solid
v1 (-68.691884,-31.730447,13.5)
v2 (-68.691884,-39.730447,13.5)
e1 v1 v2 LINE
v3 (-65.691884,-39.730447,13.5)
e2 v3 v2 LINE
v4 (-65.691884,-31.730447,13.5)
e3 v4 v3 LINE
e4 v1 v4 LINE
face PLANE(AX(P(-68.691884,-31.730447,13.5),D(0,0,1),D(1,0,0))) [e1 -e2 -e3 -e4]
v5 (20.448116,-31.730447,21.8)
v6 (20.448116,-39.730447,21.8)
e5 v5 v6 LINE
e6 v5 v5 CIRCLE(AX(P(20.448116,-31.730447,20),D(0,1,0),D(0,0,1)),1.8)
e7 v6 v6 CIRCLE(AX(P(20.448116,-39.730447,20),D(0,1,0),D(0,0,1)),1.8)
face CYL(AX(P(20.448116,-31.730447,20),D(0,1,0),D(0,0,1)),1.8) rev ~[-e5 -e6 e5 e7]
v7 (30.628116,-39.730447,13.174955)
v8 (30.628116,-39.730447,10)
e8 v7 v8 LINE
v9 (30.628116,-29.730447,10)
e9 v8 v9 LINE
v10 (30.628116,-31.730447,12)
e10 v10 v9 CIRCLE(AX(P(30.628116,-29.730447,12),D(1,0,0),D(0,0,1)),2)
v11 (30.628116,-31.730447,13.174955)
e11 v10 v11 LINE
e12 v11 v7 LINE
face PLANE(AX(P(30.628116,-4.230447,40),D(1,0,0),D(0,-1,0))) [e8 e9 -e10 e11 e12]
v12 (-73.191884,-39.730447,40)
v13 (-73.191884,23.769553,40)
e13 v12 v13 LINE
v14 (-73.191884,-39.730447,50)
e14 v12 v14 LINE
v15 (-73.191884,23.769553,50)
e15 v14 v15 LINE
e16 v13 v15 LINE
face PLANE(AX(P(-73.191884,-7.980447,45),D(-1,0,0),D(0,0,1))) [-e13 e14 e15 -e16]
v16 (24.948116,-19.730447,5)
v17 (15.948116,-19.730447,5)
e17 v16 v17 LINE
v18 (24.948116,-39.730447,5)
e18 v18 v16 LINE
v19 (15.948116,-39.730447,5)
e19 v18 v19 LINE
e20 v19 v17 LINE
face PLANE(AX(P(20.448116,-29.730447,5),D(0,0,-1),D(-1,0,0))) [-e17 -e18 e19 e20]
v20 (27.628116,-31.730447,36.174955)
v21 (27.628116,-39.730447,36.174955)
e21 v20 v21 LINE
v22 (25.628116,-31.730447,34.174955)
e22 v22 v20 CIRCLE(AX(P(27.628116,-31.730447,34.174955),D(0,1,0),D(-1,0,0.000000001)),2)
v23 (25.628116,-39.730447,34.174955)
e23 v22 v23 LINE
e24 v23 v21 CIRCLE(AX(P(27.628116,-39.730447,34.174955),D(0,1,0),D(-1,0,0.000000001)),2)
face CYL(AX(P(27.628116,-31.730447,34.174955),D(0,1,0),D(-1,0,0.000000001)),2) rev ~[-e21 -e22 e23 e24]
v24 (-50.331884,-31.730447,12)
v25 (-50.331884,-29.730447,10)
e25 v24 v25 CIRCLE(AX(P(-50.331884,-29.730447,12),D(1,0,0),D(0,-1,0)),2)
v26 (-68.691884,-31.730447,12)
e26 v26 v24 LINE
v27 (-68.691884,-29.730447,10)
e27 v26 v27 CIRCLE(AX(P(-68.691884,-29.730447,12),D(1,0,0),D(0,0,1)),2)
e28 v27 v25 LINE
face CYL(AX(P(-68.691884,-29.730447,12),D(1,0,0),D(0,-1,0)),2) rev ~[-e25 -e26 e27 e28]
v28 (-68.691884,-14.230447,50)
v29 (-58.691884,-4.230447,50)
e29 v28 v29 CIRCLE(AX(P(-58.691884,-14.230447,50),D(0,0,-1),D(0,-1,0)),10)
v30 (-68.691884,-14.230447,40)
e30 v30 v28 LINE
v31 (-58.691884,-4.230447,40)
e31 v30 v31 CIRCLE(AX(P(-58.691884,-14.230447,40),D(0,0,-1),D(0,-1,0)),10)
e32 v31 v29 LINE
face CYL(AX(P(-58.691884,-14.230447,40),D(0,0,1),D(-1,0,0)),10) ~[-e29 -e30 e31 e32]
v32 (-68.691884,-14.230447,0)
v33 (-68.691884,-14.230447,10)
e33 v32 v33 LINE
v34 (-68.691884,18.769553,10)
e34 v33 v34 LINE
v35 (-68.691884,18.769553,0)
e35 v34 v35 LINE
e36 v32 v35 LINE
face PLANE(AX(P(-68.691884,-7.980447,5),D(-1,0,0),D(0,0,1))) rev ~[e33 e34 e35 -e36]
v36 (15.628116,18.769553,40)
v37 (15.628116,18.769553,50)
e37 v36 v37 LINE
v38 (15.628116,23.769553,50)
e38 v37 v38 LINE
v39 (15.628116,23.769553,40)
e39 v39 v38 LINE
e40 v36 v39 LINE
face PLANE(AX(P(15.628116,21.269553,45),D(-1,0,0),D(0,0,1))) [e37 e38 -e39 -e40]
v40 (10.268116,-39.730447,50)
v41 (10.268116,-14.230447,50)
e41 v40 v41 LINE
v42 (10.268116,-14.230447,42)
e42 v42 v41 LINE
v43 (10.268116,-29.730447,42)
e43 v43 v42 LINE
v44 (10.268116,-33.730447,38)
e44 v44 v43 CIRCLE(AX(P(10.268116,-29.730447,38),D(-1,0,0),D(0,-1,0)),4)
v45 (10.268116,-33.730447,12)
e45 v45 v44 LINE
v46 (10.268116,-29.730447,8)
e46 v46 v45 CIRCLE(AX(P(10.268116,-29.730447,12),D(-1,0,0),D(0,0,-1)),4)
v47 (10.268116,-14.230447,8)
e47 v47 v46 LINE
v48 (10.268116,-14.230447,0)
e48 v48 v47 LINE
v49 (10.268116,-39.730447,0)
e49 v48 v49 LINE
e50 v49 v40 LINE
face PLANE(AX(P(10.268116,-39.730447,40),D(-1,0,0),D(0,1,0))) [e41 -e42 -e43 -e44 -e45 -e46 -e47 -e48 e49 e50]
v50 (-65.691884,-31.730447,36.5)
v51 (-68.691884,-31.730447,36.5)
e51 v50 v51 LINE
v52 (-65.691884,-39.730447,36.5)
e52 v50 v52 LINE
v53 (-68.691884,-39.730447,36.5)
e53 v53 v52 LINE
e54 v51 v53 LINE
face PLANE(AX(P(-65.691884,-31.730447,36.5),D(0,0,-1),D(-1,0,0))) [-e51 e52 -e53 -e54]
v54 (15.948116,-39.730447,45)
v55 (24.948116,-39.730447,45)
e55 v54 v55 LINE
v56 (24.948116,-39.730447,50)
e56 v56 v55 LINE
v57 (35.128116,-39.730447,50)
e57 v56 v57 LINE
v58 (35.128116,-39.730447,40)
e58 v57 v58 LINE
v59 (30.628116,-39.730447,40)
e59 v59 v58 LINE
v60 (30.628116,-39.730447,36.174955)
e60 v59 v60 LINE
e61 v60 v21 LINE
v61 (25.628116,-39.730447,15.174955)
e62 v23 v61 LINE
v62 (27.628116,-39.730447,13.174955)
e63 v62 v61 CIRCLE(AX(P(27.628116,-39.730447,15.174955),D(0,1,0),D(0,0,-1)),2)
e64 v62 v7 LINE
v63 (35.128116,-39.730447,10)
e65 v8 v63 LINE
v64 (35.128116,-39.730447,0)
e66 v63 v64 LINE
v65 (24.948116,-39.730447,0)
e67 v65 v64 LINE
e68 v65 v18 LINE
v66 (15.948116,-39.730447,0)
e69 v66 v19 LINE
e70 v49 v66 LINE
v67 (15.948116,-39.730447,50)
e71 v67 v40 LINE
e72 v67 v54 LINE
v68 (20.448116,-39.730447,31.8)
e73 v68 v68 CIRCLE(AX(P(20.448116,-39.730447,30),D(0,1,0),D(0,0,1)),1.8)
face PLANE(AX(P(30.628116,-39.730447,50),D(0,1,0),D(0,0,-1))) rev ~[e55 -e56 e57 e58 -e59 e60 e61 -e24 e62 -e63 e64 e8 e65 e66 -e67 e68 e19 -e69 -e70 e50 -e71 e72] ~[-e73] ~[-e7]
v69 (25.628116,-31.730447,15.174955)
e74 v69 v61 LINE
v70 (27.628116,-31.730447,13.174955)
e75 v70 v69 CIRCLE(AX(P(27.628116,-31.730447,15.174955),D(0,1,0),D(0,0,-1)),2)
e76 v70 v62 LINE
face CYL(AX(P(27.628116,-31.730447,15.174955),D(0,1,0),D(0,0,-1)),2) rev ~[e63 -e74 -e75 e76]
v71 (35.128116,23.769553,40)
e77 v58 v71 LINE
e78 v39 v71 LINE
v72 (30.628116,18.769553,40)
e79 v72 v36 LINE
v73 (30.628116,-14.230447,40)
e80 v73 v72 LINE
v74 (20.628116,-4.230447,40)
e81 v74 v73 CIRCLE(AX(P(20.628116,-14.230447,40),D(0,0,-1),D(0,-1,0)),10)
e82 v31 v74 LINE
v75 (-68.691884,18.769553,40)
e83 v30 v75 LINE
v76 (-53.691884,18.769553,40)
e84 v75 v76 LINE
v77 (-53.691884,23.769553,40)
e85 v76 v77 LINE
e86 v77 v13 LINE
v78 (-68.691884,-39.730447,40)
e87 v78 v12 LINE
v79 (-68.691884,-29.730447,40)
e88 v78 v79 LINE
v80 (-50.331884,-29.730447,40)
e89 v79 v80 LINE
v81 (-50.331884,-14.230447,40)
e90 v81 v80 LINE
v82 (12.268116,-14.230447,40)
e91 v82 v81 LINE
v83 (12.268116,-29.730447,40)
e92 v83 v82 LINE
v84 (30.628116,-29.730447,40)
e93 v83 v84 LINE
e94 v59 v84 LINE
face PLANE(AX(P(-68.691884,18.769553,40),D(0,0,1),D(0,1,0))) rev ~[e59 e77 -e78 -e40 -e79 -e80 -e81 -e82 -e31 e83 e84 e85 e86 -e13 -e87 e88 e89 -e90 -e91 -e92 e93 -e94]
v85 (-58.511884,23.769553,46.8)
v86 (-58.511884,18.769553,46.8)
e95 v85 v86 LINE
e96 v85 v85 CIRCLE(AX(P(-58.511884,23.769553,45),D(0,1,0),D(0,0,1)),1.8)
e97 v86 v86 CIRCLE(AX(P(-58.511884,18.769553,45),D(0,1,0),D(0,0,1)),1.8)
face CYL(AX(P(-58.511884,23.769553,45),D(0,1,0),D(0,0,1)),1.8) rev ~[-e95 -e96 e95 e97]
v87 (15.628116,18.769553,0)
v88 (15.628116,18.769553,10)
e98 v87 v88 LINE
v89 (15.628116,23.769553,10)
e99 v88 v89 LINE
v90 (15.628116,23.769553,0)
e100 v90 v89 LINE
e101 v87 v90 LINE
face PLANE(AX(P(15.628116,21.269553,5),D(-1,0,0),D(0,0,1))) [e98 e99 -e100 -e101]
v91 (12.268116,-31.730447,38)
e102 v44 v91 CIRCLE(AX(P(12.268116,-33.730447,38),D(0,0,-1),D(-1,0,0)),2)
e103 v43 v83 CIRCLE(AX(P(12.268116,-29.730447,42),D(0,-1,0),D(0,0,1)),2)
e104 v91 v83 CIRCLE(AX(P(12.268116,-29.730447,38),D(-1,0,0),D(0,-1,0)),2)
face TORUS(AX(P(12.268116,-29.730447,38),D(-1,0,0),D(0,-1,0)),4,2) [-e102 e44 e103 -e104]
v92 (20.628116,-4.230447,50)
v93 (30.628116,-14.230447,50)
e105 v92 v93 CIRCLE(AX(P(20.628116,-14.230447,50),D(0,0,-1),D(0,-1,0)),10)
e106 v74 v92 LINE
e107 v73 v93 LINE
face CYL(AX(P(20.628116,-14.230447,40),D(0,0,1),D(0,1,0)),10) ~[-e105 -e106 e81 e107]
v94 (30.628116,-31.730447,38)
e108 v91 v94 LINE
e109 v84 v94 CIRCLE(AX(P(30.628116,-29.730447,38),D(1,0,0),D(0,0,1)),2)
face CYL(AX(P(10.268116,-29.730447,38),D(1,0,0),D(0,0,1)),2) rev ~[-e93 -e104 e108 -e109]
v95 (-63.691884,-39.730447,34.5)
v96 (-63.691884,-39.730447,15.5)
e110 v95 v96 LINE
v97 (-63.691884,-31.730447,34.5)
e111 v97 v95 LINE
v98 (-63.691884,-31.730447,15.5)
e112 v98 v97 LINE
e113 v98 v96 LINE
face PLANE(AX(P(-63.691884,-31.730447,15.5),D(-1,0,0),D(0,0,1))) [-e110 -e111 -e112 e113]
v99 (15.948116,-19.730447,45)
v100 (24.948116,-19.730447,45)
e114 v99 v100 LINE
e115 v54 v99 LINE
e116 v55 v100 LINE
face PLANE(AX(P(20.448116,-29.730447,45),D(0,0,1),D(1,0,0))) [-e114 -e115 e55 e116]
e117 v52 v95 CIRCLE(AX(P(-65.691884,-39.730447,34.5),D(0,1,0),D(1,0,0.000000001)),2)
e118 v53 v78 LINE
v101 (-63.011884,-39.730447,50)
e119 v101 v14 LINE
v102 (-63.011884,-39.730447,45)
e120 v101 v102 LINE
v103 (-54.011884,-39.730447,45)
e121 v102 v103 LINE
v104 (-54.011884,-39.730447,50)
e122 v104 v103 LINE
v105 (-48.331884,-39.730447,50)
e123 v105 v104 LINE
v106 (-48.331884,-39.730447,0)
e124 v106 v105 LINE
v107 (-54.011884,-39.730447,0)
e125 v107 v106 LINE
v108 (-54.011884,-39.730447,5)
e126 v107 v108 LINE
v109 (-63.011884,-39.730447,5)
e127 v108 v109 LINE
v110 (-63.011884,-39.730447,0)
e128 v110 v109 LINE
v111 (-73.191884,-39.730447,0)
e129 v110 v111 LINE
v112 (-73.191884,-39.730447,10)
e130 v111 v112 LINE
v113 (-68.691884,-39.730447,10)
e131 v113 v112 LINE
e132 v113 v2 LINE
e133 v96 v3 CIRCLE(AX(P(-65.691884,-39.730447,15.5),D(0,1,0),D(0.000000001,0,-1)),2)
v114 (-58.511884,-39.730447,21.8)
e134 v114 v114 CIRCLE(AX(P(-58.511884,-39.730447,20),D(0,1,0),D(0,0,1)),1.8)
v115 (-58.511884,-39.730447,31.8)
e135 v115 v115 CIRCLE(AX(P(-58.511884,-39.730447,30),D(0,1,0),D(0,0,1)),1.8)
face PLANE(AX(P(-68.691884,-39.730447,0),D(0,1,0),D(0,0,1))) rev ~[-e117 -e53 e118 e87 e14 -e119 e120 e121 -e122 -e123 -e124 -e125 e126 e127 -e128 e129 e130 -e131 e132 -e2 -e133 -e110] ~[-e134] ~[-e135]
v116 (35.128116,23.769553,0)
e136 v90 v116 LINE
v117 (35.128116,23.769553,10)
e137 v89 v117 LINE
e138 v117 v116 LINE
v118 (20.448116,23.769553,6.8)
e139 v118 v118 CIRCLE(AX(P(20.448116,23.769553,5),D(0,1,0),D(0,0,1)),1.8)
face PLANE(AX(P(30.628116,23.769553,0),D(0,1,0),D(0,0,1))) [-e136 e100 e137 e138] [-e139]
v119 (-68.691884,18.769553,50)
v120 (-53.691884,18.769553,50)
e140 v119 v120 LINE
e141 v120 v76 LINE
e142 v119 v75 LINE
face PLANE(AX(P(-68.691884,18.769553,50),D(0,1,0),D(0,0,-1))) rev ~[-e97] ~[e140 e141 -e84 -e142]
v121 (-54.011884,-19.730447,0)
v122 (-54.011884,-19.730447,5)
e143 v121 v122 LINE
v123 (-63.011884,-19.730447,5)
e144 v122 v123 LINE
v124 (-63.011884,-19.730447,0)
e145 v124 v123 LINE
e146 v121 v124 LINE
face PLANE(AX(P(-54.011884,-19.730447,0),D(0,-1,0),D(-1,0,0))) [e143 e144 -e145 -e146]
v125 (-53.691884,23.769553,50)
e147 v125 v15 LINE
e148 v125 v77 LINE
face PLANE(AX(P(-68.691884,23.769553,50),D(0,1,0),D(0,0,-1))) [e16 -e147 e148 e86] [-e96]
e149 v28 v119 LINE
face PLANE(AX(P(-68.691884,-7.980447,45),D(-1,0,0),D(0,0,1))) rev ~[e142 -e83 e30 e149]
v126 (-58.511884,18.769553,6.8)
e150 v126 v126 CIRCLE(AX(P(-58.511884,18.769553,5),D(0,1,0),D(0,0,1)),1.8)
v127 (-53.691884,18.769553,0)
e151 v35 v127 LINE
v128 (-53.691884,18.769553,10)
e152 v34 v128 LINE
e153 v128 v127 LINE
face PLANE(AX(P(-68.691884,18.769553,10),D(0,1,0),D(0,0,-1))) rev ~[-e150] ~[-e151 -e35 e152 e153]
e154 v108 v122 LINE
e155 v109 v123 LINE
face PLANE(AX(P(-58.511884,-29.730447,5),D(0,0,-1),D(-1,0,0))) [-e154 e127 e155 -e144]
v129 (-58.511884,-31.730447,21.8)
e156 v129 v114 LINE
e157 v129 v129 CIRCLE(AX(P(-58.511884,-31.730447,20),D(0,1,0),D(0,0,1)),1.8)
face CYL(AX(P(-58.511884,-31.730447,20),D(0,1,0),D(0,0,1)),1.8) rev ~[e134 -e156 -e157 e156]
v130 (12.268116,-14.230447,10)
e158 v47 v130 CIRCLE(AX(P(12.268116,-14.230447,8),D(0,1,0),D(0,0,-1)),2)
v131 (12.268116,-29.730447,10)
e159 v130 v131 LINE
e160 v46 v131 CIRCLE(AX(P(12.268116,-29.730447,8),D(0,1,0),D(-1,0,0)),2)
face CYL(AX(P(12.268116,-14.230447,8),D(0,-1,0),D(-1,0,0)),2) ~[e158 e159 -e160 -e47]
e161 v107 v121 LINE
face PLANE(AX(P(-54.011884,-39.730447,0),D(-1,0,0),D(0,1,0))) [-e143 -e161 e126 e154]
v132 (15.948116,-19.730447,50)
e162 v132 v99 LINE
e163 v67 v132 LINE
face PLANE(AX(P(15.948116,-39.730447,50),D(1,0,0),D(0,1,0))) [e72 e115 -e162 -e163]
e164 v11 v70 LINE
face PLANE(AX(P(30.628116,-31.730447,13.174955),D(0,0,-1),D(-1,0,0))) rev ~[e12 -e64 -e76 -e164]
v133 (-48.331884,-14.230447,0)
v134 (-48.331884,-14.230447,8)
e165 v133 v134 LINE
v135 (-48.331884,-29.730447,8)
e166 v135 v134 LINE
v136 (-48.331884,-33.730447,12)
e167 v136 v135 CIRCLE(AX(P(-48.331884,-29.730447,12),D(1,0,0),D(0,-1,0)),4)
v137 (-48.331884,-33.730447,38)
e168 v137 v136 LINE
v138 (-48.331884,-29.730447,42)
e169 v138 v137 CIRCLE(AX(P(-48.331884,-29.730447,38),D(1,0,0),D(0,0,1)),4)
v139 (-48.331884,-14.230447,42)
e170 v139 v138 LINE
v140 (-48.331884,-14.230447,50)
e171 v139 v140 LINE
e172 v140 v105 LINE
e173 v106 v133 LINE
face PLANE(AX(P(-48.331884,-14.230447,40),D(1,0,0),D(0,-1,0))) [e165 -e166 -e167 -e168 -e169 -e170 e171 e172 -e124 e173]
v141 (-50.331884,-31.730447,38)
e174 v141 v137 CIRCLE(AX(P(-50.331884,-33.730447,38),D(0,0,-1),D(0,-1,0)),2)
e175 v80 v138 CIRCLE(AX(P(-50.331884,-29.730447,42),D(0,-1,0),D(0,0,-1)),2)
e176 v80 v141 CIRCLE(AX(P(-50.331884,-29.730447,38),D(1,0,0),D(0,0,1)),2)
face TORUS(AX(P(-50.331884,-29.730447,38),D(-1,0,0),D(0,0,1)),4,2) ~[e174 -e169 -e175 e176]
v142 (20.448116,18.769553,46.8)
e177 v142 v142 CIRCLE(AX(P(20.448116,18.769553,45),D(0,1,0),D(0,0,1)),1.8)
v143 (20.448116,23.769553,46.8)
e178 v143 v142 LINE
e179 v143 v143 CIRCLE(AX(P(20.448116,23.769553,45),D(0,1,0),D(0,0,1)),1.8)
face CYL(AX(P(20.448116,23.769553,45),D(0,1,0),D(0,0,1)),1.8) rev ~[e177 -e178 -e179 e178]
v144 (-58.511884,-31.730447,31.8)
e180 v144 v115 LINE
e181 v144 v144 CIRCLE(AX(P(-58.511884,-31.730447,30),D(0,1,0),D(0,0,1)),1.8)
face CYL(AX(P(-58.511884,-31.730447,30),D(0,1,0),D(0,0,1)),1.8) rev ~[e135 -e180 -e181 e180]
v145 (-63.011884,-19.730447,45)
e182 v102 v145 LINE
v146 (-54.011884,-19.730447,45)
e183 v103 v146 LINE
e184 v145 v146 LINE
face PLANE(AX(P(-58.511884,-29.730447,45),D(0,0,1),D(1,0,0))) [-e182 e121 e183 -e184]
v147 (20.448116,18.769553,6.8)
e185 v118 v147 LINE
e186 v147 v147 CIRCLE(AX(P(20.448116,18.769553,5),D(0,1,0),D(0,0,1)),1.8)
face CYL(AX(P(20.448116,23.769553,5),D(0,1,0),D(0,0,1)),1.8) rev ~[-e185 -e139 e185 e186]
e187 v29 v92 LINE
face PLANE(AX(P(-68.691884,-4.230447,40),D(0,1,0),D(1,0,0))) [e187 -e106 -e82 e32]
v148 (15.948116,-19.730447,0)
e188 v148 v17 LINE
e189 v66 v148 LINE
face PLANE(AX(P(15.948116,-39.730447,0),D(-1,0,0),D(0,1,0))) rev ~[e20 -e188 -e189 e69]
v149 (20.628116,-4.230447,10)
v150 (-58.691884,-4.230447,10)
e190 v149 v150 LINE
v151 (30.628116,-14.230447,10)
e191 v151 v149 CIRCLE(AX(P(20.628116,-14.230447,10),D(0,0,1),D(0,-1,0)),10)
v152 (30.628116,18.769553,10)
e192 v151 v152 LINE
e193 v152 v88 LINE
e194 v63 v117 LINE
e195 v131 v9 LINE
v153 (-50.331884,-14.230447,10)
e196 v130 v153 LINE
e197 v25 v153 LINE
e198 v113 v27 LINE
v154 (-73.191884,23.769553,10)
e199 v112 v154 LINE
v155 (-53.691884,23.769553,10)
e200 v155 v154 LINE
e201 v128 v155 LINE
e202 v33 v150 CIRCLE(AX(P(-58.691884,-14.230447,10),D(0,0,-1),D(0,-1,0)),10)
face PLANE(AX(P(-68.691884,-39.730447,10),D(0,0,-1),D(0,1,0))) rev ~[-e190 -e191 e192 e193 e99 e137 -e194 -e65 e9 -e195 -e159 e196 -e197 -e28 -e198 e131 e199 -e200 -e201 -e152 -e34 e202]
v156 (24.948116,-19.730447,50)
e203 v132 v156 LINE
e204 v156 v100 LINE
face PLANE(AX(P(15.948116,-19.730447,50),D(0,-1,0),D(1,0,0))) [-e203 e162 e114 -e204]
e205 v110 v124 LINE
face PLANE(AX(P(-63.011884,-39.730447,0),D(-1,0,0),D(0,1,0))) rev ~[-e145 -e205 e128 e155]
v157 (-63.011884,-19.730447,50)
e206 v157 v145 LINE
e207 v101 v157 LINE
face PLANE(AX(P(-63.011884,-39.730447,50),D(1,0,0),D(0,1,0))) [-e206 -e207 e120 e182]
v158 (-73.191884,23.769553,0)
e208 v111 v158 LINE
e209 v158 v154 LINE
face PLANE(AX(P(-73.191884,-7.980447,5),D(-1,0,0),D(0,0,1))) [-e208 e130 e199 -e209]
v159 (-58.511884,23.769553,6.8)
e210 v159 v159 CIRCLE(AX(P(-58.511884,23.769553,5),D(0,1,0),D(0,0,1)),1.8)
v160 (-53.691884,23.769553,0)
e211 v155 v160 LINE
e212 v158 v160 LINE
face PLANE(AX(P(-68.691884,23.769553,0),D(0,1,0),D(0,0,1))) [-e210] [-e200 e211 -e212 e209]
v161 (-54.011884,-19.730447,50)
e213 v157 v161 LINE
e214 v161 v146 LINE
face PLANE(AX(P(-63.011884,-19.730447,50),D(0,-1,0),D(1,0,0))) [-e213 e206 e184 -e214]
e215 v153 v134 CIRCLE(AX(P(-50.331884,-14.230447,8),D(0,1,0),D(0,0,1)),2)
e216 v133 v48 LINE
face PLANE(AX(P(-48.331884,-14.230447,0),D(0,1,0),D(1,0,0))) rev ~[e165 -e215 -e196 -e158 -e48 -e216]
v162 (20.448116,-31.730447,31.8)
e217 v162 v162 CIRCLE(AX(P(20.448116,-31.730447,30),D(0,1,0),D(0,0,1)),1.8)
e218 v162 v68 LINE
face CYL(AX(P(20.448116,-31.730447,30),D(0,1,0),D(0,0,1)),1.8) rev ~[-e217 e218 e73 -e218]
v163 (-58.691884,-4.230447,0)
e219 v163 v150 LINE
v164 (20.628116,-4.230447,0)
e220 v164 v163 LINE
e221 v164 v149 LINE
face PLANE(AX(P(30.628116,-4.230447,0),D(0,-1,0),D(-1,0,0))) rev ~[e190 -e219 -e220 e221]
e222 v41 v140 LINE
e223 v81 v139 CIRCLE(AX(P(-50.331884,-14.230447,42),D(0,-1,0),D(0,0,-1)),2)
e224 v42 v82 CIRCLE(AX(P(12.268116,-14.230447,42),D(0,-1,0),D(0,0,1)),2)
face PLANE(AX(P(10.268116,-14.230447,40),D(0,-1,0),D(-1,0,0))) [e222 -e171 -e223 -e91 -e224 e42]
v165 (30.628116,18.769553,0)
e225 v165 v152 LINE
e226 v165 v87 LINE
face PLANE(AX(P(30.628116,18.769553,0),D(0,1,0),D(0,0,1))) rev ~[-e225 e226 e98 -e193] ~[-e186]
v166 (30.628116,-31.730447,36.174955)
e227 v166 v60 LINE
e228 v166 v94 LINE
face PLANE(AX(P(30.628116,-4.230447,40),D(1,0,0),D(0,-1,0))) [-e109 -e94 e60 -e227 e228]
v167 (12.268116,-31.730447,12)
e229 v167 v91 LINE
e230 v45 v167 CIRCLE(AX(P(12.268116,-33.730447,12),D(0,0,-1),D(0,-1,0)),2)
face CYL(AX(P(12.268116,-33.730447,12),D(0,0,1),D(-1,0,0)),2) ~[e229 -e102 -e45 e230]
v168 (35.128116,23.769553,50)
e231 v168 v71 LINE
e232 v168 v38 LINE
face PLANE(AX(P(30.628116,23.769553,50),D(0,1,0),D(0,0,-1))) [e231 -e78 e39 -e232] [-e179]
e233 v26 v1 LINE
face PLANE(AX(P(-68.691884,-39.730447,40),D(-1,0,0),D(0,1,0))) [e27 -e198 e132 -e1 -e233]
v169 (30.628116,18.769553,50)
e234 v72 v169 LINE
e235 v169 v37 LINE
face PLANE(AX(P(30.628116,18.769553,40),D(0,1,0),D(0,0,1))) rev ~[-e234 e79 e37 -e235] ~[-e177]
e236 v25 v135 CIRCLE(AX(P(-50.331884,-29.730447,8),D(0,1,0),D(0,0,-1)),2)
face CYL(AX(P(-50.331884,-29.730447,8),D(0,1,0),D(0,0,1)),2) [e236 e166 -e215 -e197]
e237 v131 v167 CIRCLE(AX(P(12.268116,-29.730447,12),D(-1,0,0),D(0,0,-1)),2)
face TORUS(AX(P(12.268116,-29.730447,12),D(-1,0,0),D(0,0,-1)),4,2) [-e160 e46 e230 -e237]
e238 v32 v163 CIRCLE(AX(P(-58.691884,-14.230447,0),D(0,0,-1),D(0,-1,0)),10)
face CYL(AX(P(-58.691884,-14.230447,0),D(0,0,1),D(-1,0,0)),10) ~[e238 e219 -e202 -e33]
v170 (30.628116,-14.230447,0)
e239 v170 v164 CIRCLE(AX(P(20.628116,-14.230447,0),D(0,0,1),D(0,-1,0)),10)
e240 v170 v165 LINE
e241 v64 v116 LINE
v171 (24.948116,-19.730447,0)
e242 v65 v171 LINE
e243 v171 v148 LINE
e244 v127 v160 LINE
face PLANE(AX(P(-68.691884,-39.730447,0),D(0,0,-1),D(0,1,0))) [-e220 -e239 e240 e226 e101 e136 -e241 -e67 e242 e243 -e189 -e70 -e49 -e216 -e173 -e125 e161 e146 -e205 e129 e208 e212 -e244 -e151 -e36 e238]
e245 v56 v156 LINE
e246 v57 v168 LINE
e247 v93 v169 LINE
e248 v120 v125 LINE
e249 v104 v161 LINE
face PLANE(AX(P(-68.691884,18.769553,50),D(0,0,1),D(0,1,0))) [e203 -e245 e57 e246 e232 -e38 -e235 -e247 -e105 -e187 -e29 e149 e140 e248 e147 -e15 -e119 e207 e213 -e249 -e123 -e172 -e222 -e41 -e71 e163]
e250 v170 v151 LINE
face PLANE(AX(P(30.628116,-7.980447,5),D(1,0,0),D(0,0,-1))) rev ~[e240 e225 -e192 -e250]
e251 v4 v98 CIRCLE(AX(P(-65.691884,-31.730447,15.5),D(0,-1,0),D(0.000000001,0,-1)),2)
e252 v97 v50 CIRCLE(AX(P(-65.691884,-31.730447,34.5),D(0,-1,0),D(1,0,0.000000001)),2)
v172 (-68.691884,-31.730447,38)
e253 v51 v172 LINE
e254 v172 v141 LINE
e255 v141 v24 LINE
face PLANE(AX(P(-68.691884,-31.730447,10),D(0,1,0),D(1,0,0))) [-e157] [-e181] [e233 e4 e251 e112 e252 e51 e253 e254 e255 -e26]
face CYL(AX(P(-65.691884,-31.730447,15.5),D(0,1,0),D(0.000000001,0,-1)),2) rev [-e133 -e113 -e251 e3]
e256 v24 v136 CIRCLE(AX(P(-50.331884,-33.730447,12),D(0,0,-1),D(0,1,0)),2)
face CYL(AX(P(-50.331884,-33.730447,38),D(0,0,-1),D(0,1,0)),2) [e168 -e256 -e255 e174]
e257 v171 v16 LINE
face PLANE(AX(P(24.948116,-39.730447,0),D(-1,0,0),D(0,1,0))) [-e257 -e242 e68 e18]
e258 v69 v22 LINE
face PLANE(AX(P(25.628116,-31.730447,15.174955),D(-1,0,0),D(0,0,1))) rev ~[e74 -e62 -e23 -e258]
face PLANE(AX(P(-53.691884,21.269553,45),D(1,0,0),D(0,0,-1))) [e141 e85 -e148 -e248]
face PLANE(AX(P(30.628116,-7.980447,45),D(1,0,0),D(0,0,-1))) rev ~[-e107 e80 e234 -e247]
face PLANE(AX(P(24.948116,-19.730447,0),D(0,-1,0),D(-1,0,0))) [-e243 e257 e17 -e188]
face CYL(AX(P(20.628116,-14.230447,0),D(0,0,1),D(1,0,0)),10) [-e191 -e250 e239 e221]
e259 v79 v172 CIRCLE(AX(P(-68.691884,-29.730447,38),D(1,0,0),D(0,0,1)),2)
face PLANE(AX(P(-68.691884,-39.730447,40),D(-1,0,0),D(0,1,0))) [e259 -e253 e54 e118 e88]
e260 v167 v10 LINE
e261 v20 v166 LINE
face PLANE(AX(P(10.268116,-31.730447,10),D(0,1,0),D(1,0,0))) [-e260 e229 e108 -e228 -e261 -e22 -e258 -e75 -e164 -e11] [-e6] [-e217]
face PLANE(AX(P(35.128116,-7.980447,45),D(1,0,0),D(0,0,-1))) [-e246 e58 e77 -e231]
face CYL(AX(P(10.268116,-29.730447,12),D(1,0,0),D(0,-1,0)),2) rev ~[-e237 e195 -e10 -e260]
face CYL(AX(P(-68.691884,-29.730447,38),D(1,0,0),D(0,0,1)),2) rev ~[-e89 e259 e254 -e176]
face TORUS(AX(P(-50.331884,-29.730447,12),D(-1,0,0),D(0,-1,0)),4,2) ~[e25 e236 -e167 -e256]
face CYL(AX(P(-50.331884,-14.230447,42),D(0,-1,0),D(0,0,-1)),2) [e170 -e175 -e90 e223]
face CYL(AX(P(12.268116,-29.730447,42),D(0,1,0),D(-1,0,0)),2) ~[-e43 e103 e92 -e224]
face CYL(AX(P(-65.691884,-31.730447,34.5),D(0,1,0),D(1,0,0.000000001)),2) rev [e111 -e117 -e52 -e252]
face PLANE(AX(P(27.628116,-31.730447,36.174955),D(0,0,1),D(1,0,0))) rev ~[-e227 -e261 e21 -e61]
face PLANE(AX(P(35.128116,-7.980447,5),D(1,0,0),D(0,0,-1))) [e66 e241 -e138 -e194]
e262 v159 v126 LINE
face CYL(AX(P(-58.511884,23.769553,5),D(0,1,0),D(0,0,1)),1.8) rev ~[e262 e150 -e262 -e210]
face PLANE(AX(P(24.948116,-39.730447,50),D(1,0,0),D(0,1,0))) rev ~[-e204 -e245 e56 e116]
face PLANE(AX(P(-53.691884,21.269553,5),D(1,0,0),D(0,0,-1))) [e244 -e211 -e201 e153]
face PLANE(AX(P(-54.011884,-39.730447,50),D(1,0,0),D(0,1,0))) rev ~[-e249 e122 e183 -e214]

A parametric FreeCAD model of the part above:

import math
import FreeCAD as App
import Part
import Sketcher
from FreeCAD import Vector
Q = App.Units.Quantity


def edges_at(feature, points):
    """Names of the edges that pass closest to the given points."""
    edges = feature.Shape.Edges
    near = lambda p: min(range(len(edges)), key=lambda i: edges[i].distToShape(Part.Vertex(*p))[0])
    return sorted({f"Edge{near(p) + 1}" for p in points})


def add_polygon(sketch, points):
    """Adds a closed chain of lines whose ends are joined by coincident constraints."""
    first, n = sketch.GeometryCount, len(points)
    for a, b in zip(points, points[1:] + points[:1]):
        sketch.addGeometry(Part.LineSegment(App.Vector(*a, 0), App.Vector(*b, 0)), False)
    for i in range(n):
        sketch.addConstraint(Sketcher.Constraint("Coincident", first + i, 2, first + (i + 1) % n, 1))

doc = App.newDocument("Part")
params = doc.addObject("Spreadsheet::Sheet", "Params")
for row, (alias, value) in enumerate([
    ("sketch1_width", "58.6 mm"),
    ("sketch1_height", "25.5 mm"),
    ("sketch1_height2", "35.5 mm"),
    ("sketch1_width2", "20.36 mm"),
    ("pad1_length", "10 mm"),
    ("sketch2_height", "8 mm"),
    ("sketch2_width", "20.36 mm"),
    ("pad2_length", "30 mm"),
    ("sketch3_width", "58.6 mm"),
    ("sketch3_height", "35.5 mm"),
    ("sketch3_height2", "25.5 mm"),
    ("sketch3_width2", "20.36 mm"),
    ("pad3_length", "10 mm"),
    ("sketch4_diameter", "3.6 mm"),
    ("sketch5_radius", "2 mm"),
    ("sketch5_width", "3 mm"),
    ("sketch5_height", "23 mm"),
    ("fillet_radius", "10 mm"),
    ("fillet2_radius", "2 mm"),
    ("fillet3_radius", "2 mm"),
    ("sketch6_width", "9 mm"),
    ("sketch6_height", "20 mm"),
    ("pocket3_length", "5 mm"),
    ("sketch7_width", "9 mm"),
    ("sketch7_height", "20 mm"),
    ("pocket4_length", "5 mm"),
    ("sketch8_height", "10 mm"),
    ("sketch8_width", "63.5 mm"),
    ("pad4_length", "4.5 mm"),
    ("sketch9_width", "5 mm"),
    ("sketch9_height", "10 mm"),
    ("pad5_length", "15 mm"),
    ("sketch10_height", "10 mm"),
    ("sketch10_width", "63.5 mm"),
    ("pad6_length", "4.5 mm"),
    ("sketch11_width", "5 mm"),
    ("sketch11_height", "10 mm"),
    ("pad7_length", "15 mm"),
    ("sketch12_diameter", "3.6 mm"),
    ("pocket5_length", "5 mm"),
], start=1):
    params.set(f"A{row}", alias)
    params.set(f"B{row}", "=" + value)
    params.setAlias(f"B{row}", alias)

body = doc.addObject("PartDesign::Body", "Body")

sketch1 = body.newObject("Sketcher::SketchObject", "Sketch")
sketch1.AttachmentSupport = (doc.getObject("XY_Plane"), [""])
sketch1.MapMode = "FlatFace"
add_polygon(sketch1, [(-69, -40), (-48, -40), (-48, -14), (10, -14), (10, -40), (31, -40), (31, -4), (-69, -4)])
sketch1.addConstraint([
    Sketcher.Constraint("Horizontal", 0),
    Sketcher.Constraint("Vertical", 1),
    Sketcher.Constraint("Horizontal", 2),
    Sketcher.Constraint("Vertical", 3),
    Sketcher.Constraint("Horizontal", 4),
    Sketcher.Constraint("Vertical", 5),
    Sketcher.Constraint("Horizontal", 6),
    Sketcher.Constraint("Vertical", 7),
    Sketcher.Constraint("Horizontal", 0, 2, 3, 2),
    Sketcher.Constraint("Equal", 0, 4),
    Sketcher.Constraint("DistanceX", 2, 1, 2, 2, Q("58.6 mm")),
    Sketcher.Constraint("DistanceY", 1, 1, 1, 2, Q("25.5 mm")),
    Sketcher.Constraint("DistanceY", 5, 1, 5, 2, Q("35.5 mm")),
    Sketcher.Constraint("DistanceX", 0, 1, 0, 2, Q("20.36 mm")),
    Sketcher.Constraint("DistanceX", 0, 2, -1, 1, Q("48.331884 mm")),
    Sketcher.Constraint("DistanceY", 0, 2, -1, 1, Q("39.730447 mm")),
])
sketch1.setExpression("Constraints[18]", "Params.sketch1_width")
sketch1.setExpression("Constraints[19]", "Params.sketch1_height")
sketch1.setExpression("Constraints[20]", "Params.sketch1_height2")
sketch1.setExpression("Constraints[21]", "Params.sketch1_width2")
pad1 = body.newObject("PartDesign::Pad", "Pad")
pad1.Profile = sketch1
pad1.setExpression("Length", "Params.pad1_length")

sketch2 = body.newObject("Sketcher::SketchObject", "Sketch001")
sketch2.AttachmentSupport = (doc.getObject("XY_Plane"), [""])
sketch2.MapMode = "FlatFace"
sketch2.AttachmentOffset = App.Placement(Vector(0, 0, 10), App.Rotation())
add_polygon(sketch2, [(-69, -32), (-69, -40), (-48, -40), (-48, -32)])
add_polygon(sketch2, [(10, -32), (10, -40), (31, -40), (31, -32)])
sketch2.addConstraint([
    Sketcher.Constraint("Vertical", 0),
    Sketcher.Constraint("Horizontal", 1),
    Sketcher.Constraint("Vertical", 2),
    Sketcher.Constraint("Horizontal", 3),
    Sketcher.Constraint("Vertical", 4),
    Sketcher.Constraint("Horizontal", 5),
    Sketcher.Constraint("Vertical", 6),
    Sketcher.Constraint("Horizontal", 7),
    Sketcher.Constraint("Horizontal", 1, 2, 4, 2),
    Sketcher.Constraint("Horizontal", 3, 2, 6, 2),
    Sketcher.Constraint("Equal", 3, 5),
    Sketcher.Constraint("DistanceY", 0, 2, 0, 1, Q("8 mm")),
    Sketcher.Constraint("DistanceX", 1, 1, 1, 2, Q("20.36 mm")),
    Sketcher.Constraint("DistanceX", 1, 2, 4, 2, Q("58.6 mm")),
    Sketcher.Constraint("DistanceX", 0, 2, -1, 1, Q("68.691884 mm")),
    Sketcher.Constraint("DistanceY", 0, 2, -1, 1, Q("39.730447 mm")),
])
sketch2.setExpression("Constraints[19]", "Params.sketch2_height")
sketch2.setExpression("Constraints[20]", "Params.sketch2_width")
pad2 = body.newObject("PartDesign::Pad", "Pad001")
pad2.Profile = sketch2
pad2.setExpression("Length", "Params.pad2_length")

sketch3 = body.newObject("Sketcher::SketchObject", "Sketch002")
sketch3.AttachmentSupport = (doc.getObject("XY_Plane"), [""])
sketch3.MapMode = "FlatFace"
sketch3.AttachmentOffset = App.Placement(Vector(0, 0, 40), App.Rotation())
add_polygon(sketch3, [(-69, -4), (-69, -40), (-48, -40), (-48, -14), (10, -14), (10, -40), (31, -40), (31, -4)])
sketch3.addConstraint([
    Sketcher.Constraint("Vertical", 0),
    Sketcher.Constraint("Horizontal", 1),
    Sketcher.Constraint("Vertical", 2),
    Sketcher.Constraint("Horizontal", 3),
    Sketcher.Constraint("Vertical", 4),
    Sketcher.Constraint("Horizontal", 5),
    Sketcher.Constraint("Vertical", 6),
    Sketcher.Constraint("Horizontal", 7),
    Sketcher.Constraint("Horizontal", 1, 2, 4, 2),
    Sketcher.Constraint("Equal", 1, 5),
    Sketcher.Constraint("DistanceX", 3, 1, 3, 2, Q("58.6 mm")),
    Sketcher.Constraint("DistanceY", 0, 2, 0, 1, Q("35.5 mm")),
    Sketcher.Constraint("DistanceY", 2, 1, 2, 2, Q("25.5 mm")),
    Sketcher.Constraint("DistanceX", 1, 1, 1, 2, Q("20.36 mm")),
    Sketcher.Constraint("DistanceX", 0, 2, -1, 1, Q("68.691884 mm")),
    Sketcher.Constraint("DistanceY", 0, 2, -1, 1, Q("39.730447 mm")),
])
sketch3.setExpression("Constraints[18]", "Params.sketch3_width")
sketch3.setExpression("Constraints[19]", "Params.sketch3_height")
sketch3.setExpression("Constraints[20]", "Params.sketch3_height2")
sketch3.setExpression("Constraints[21]", "Params.sketch3_width2")
pad3 = body.newObject("PartDesign::Pad", "Pad002")
pad3.Profile = sketch3
pad3.setExpression("Length", "Params.pad3_length")

sketch4 = body.newObject("Sketcher::SketchObject", "Sketch003")
sketch4.AttachmentSupport = (doc.getObject("XZ_Plane"), [""])
sketch4.MapMode = "FlatFace"
sketch4.AttachmentOffset = App.Placement(Vector(0, 0, 31.730447), App.Rotation())
sketch4.addGeometry([
    Part.Circle(Vector(-58.5, 20, 0), Vector(0, 0, 1), 1.8),
    Part.Circle(Vector(-58.5, 30, 0), Vector(0, 0, 1), 1.8),
    Part.Circle(Vector(20.4, 30, 0), Vector(0, 0, 1), 1.8),
    Part.Circle(Vector(20.4, 20, 0), Vector(0, 0, 1), 1.8),
], False)
sketch4.addConstraint([
    Sketcher.Constraint("Equal", 0, 1),
    Sketcher.Constraint("Equal", 1, 2),
    Sketcher.Constraint("Equal", 2, 3),
    Sketcher.Constraint("Horizontal", 1, 3, 2, 3),
    Sketcher.Constraint("Horizontal", 0, 3, 3, 3),
    Sketcher.Constraint("Vertical", 0, 3, 1, 3),
    Sketcher.Constraint("Vertical", 2, 3, 3, 3),
    Sketcher.Constraint("Diameter", 0, Q("3.6 mm")),
    Sketcher.Constraint("DistanceY", -1, 1, 0, 3, Q("20 mm")),
    Sketcher.Constraint("DistanceY", -1, 1, 1, 3, Q("30 mm")),
    Sketcher.Constraint("DistanceX", 1, 3, 2, 3, Q("78.96 mm")),
    Sketcher.Constraint("DistanceX", 0, 3, -1, 1, Q("58.511884 mm")),
])
sketch4.setExpression("Constraints[7]", "Params.sketch4_diameter")
pocket1 = body.newObject("PartDesign::Pocket", "Pocket")
pocket1.Profile = sketch4
pocket1.Type = "ThroughAll"
pocket1.Reversed = True

sketch5 = body.newObject("Sketcher::SketchObject", "Sketch004")
sketch5.AttachmentSupport = (doc.getObject("XZ_Plane"), [""])
sketch5.MapMode = "FlatFace"
sketch5.AttachmentOffset = App.Placement(Vector(0, 0, 31.730447), App.Rotation())
sketch5.addGeometry([
    Part.LineSegment(Vector(-65.7, 13.5, 0), Vector(-68.7, 13.5, 0)),
    Part.LineSegment(Vector(-68.7, 13.5, 0), Vector(-68.7, 36.5, 0)),
    Part.LineSegment(Vector(-68.7, 36.5, 0), Vector(-65.7, 36.5, 0)),
    Part.ArcOfCircle(Part.Circle(Vector(-65.7, 34.5, 0), Vector(0, 0, 1), 2), math.radians(0), math.radians(90)),
    Part.LineSegment(Vector(-63.7, 34.5, 0), Vector(-63.7, 15.5, 0)),
    Part.ArcOfCircle(Part.Circle(Vector(-65.7, 15.5, 0), Vector(0, 0, 1), 2), math.radians(-90), math.radians(0)),
    Part.LineSegment(Vector(30.6, 13.2, 0), Vector(27.6, 13.2, 0)),
    Part.ArcOfCircle(Part.Circle(Vector(27.6, 15.2, 0), Vector(0, 0, 1), 2), math.radians(180), math.radians(270)),
    Part.LineSegment(Vector(25.6, 15.2, 0), Vector(25.6, 34.2, 0)),
    Part.ArcOfCircle(Part.Circle(Vector(27.6, 34.2, 0), Vector(0, 0, 1), 2), math.radians(90), math.radians(180)),
    Part.LineSegment(Vector(27.6, 36.2, 0), Vector(30.6, 36.2, 0)),
    Part.LineSegment(Vector(30.6, 36.2, 0), Vector(30.6, 13.2, 0)),
], False)
sketch5.addConstraint([
    Sketcher.Constraint("Coincident", 0, 2, 1, 1),
    Sketcher.Constraint("Coincident", 1, 2, 2, 1),
    Sketcher.Constraint("Tangent", 2, 2, 3, 2),
    Sketcher.Constraint("Tangent", 3, 1, 4, 1),
    Sketcher.Constraint("Tangent", 4, 2, 5, 2),
    Sketcher.Constraint("Tangent", 5, 1, 0, 1),
    Sketcher.Constraint("Tangent", 6, 2, 7, 2),
    Sketcher.Constraint("Tangent", 7, 1, 8, 1),
    Sketcher.Constraint("Tangent", 8, 2, 9, 2),
    Sketcher.Constraint("Tangent", 9, 1, 10, 1),
    Sketcher.Constraint("Coincident", 10, 2, 11, 1),
    Sketcher.Constraint("Coincident", 11, 2, 6, 1),
    Sketcher.Constraint("Horizontal", 0),
    Sketcher.Constraint("Vertical", 1),
    Sketcher.Constraint("Horizontal", 2),
    Sketcher.Constraint("Vertical", 4),
    Sketcher.Constraint("Horizontal", 6),
    Sketcher.Constraint("Vertical", 8),
    Sketcher.Constraint("Horizontal", 10),
    Sketcher.Constraint("Vertical", 11),
    Sketcher.Constraint("Equal", 3, 5),
    Sketcher.Constraint("Equal", 5, 7),
    Sketcher.Constraint("Equal", 7, 9),
    Sketcher.Constraint("Equal", 2, 6),
    Sketcher.Constraint("Equal", 4, 8),
    Sketcher.Constraint("Radius", 3, Q("2 mm")),
    Sketcher.Constraint("DistanceX", 0, 2, 0, 1, Q("3 mm")),
    Sketcher.Constraint("DistanceY", 1, 1, 1, 2, Q("23 mm")),
    Sketcher.Constraint("DistanceY", -1, 1, 3, 3, Q("34.5 mm")),
    Sketcher.Constraint("DistanceX", 5, 3, 7, 3, Q("93.32 mm")),
    Sketcher.Constraint("DistanceX", 3, 3, -1, 1, Q("65.691884 mm")),
    Sketcher.Constraint("DistanceY", -1, 1, 7, 3, Q("15.174955 mm")),
])
sketch5.setExpression("Constraints[25]", "Params.sketch5_radius")
sketch5.setExpression("Constraints[26]", "Params.sketch5_width")
sketch5.setExpression("Constraints[27]", "Params.sketch5_height")
pocket2 = body.newObject("PartDesign::Pocket", "Pocket001")
pocket2.Profile = sketch5
pocket2.Type = "ThroughAll"
pocket2.Reversed = True
doc.recompute()

fillet = body.newObject("PartDesign::Fillet", "Fillet")
fillet.Base = (pocket2, edges_at(pocket2, [
    (30.628, -4.23, 5),
    (30.628, -4.23, 45),
    (-68.692, -4.23, 5),
    (-68.692, -4.23, 45),
]))
fillet.setExpression("Radius", "Params.fillet_radius")
doc.recompute()

fillet2 = body.newObject("PartDesign::Fillet", "Fillet001")
fillet2.Base = (fillet, edges_at(fillet, [
    (20.448, -31.73, 40),
    (-58.512, -31.73, 40),
    (20.448, -31.73, 10),
    (-58.512, -31.73, 10),
]))
fillet2.setExpression("Radius", "Params.fillet2_radius")
doc.recompute()

fillet3 = body.newObject("PartDesign::Fillet", "Fillet002")
fillet3.Base = (fillet2, edges_at(fillet2, [
    (10.268, -21.98, 10),
    (-48.332, -21.98, 40),
    (10.268, -31.73, 25),
    (-48.332, -31.73, 25),
    (-48.332, -21.98, 10),
    (10.268, -31.145, 39.414),
    (-48.332, -31.145, 39.414),
    (10.268, -31.145, 10.586),
    (-48.332, -31.145, 10.586),
    (10.268, -21.98, 40),
]))
fillet3.setExpression("Radius", "Params.fillet3_radius")

sketch6 = body.newObject("Sketcher::SketchObject", "Sketch005")
sketch6.AttachmentSupport = (doc.getObject("XY_Plane"), [""])
sketch6.MapMode = "FlatFace"
sketch6.AttachmentOffset = App.Placement(Vector(0, 0, 50), App.Rotation())
add_polygon(sketch6, [(-63, -20), (-63, -40), (-54, -40), (-54, -20)])
add_polygon(sketch6, [(16, -20), (16, -40), (25, -40), (25, -20)])
sketch6.addConstraint([
    Sketcher.Constraint("Vertical", 0),
    Sketcher.Constraint("Horizontal", 1),
    Sketcher.Constraint("Vertical", 2),
    Sketcher.Constraint("Horizontal", 3),
    Sketcher.Constraint("Vertical", 4),
    Sketcher.Constraint("Horizontal", 5),
    Sketcher.Constraint("Vertical", 6),
    Sketcher.Constraint("Horizontal", 7),
    Sketcher.Constraint("Horizontal", 1, 2, 4, 2),
    Sketcher.Constraint("Horizontal", 3, 2, 6, 2),
    Sketcher.Constraint("Equal", 3, 5),
    Sketcher.Constraint("DistanceX", 1, 1, 1, 2, Q("9 mm")),
    Sketcher.Constraint("DistanceY", 0, 2, 0, 1, Q("20 mm")),
    Sketcher.Constraint("DistanceX", 1, 2, 4, 2, Q("69.96 mm")),
    Sketcher.Constraint("DistanceX", 0, 2, -1, 1, Q("63.011884 mm")),
    Sketcher.Constraint("DistanceY", 0, 2, -1, 1, Q("39.730447 mm")),
])
sketch6.setExpression("Constraints[19]", "Params.sketch6_width")
sketch6.setExpression("Constraints[20]", "Params.sketch6_height")
pocket3 = body.newObject("PartDesign::Pocket", "Pocket002")
pocket3.Profile = sketch6
pocket3.setExpression("Length", "Params.pocket3_length")

sketch7 = body.newObject("Sketcher::SketchObject", "Sketch006")
sketch7.AttachmentSupport = (doc.getObject("XY_Plane"), [""])
sketch7.MapMode = "FlatFace"
add_polygon(sketch7, [(25, -20), (25, -40), (16, -40), (16, -20)])
add_polygon(sketch7, [(-54, -20), (-54, -40), (-63, -40), (-63, -20)])
sketch7.addConstraint([
    Sketcher.Constraint("Vertical", 0),
    Sketcher.Constraint("Horizontal", 1),
    Sketcher.Constraint("Vertical", 2),
    Sketcher.Constraint("Horizontal", 3),
    Sketcher.Constraint("Vertical", 4),
    Sketcher.Constraint("Horizontal", 5),
    Sketcher.Constraint("Vertical", 6),
    Sketcher.Constraint("Horizontal", 7),
    Sketcher.Constraint("Horizontal", 1, 2, 4, 2),
    Sketcher.Constraint("Horizontal", 3, 2, 6, 2),
    Sketcher.Constraint("Equal", 3, 5),
    Sketcher.Constraint("DistanceX", 1, 2, 1, 1, Q("9 mm")),
    Sketcher.Constraint("DistanceY", 0, 2, 0, 1, Q("20 mm")),
    Sketcher.Constraint("DistanceX", 4, 2, 1, 2, Q("69.96 mm")),
    Sketcher.Constraint("DistanceX", -1, 1, 0, 2, Q("24.948116 mm")),
    Sketcher.Constraint("DistanceY", 0, 2, -1, 1, Q("39.730447 mm")),
])
sketch7.setExpression("Constraints[19]", "Params.sketch7_width")
sketch7.setExpression("Constraints[20]", "Params.sketch7_height")
pocket4 = body.newObject("PartDesign::Pocket", "Pocket003")
pocket4.Profile = sketch7
pocket4.setExpression("Length", "Params.pocket4_length")
pocket4.Reversed = True

sketch8 = body.newObject("Sketcher::SketchObject", "Sketch007")
sketch8.AttachmentSupport = (doc.getObject("YZ_Plane"), [""])
sketch8.MapMode = "FlatFace"
sketch8.AttachmentOffset = App.Placement(Vector(0, 0, 30.628116), App.Rotation())
add_polygon(sketch8, [(24, 50), (-40, 50), (-40, 40), (24, 40)])
add_polygon(sketch8, [(24, 10), (-40, 10), (-40, 0), (24, 0)])
sketch8.addConstraint([
    Sketcher.Constraint("Horizontal", 0),
    Sketcher.Constraint("Vertical", 1),
    Sketcher.Constraint("Horizontal", 2),
    Sketcher.Constraint("Vertical", 3),
    Sketcher.Constraint("Horizontal", 4),
    Sketcher.Constraint("Vertical", 5),
    Sketcher.Constraint("Horizontal", 6),
    Sketcher.Constraint("Vertical", 7),
    Sketcher.Constraint("PointOnObject", 5, 2, -1),
    Sketcher.Constraint("Vertical", 1, 2, 4, 2),
    Sketcher.Constraint("Vertical", 3, 2, 6, 2),
    Sketcher.Constraint("Equal", 3, 5),
    Sketcher.Constraint("DistanceY", 1, 2, 1, 1, Q("10 mm")),
    Sketcher.Constraint("DistanceX", 0, 2, 0, 1, Q("63.5 mm")),
    Sketcher.Constraint("DistanceY", -1, 1, 0, 2, Q("50 mm")),
    Sketcher.Constraint("DistanceX", 0, 2, -1, 1, Q("39.730447 mm")),
])
sketch8.setExpression("Constraints[20]", "Params.sketch8_height")
sketch8.setExpression("Constraints[21]", "Params.sketch8_width")
pad4 = body.newObject("PartDesign::Pad", "Pad003")
pad4.Profile = sketch8
pad4.setExpression("Length", "Params.pad4_length")

sketch9 = body.newObject("Sketcher::SketchObject", "Sketch008")
sketch9.AttachmentSupport = (doc.getObject("YZ_Plane"), [""])
sketch9.MapMode = "FlatFace"
sketch9.AttachmentOffset = App.Placement(Vector(0, 0, 30.628116), App.Rotation())
add_polygon(sketch9, [(24, 0), (19, 0), (19, 10), (24, 10)])
add_polygon(sketch9, [(24, 40), (19, 40), (19, 50), (24, 50)])
sketch9.addConstraint([
    Sketcher.Constraint("Horizontal", 0),
    Sketcher.Constraint("Vertical", 1),
    Sketcher.Constraint("Horizontal", 2),
    Sketcher.Constraint("Vertical", 3),
    Sketcher.Constraint("Horizontal", 4),
    Sketcher.Constraint("Vertical", 5),
    Sketcher.Constraint("Horizontal", 6),
    Sketcher.Constraint("Vertical", 7),
    Sketcher.Constraint("PointOnObject", 0, 2, -1),
    Sketcher.Constraint("Vertical", 1, 2, 4, 2),
    Sketcher.Constraint("Vertical", 3, 2, 6, 2),
    Sketcher.Constraint("Equal", 3, 5),
    Sketcher.Constraint("DistanceX", 0, 2, 0, 1, Q("5 mm")),
    Sketcher.Constraint("DistanceY", 1, 1, 1, 2, Q("10 mm")),
    Sketcher.Constraint("DistanceY", -1, 1, 4, 2, Q("40 mm")),
    Sketcher.Constraint("DistanceX", -1, 1, 0, 2, Q("18.769553 mm")),
])
sketch9.setExpression("Constraints[20]", "Params.sketch9_width")
sketch9.setExpression("Constraints[21]", "Params.sketch9_height")
pad5 = body.newObject("PartDesign::Pad", "Pad004")
pad5.Profile = sketch9
pad5.setExpression("Length", "Params.pad5_length")
pad5.Reversed = True

sketch10 = body.newObject("Sketcher::SketchObject", "Sketch009")
sketch10.AttachmentSupport = (doc.getObject("YZ_Plane"), [""])
sketch10.MapMode = "FlatFace"
sketch10.AttachmentOffset = App.Placement(Vector(0, 0, -68.691884), App.Rotation())
add_polygon(sketch10, [(24, 0), (-40, 0), (-40, 10), (24, 10)])
add_polygon(sketch10, [(24, 40), (-40, 40), (-40, 50), (24, 50)])
sketch10.addConstraint([
    Sketcher.Constraint("Horizontal", 0),
    Sketcher.Constraint("Vertical", 1),
    Sketcher.Constraint("Horizontal", 2),
    Sketcher.Constraint("Vertical", 3),
    Sketcher.Constraint("Horizontal", 4),
    Sketcher.Constraint("Vertical", 5),
    Sketcher.Constraint("Horizontal", 6),
    Sketcher.Constraint("Vertical", 7),
    Sketcher.Constraint("PointOnObject", 0, 2, -1),
    Sketcher.Constraint("Vertical", 1, 2, 4, 2),
    Sketcher.Constraint("Vertical", 3, 2, 6, 2),
    Sketcher.Constraint("Equal", 3, 5),
    Sketcher.Constraint("DistanceY", 1, 1, 1, 2, Q("10 mm")),
    Sketcher.Constraint("DistanceX", 0, 2, 0, 1, Q("63.5 mm")),
    Sketcher.Constraint("DistanceY", -1, 1, 4, 2, Q("40 mm")),
    Sketcher.Constraint("DistanceX", 0, 2, -1, 1, Q("39.730447 mm")),
])
sketch10.setExpression("Constraints[20]", "Params.sketch10_height")
sketch10.setExpression("Constraints[21]", "Params.sketch10_width")
pad6 = body.newObject("PartDesign::Pad", "Pad005")
pad6.Profile = sketch10
pad6.setExpression("Length", "Params.pad6_length")
pad6.Reversed = True

sketch11 = body.newObject("Sketcher::SketchObject", "Sketch010")
sketch11.AttachmentSupport = (doc.getObject("YZ_Plane"), [""])
sketch11.MapMode = "FlatFace"
sketch11.AttachmentOffset = App.Placement(Vector(0, 0, -68.691884), App.Rotation())
add_polygon(sketch11, [(24, 50), (19, 50), (19, 40), (24, 40)])
add_polygon(sketch11, [(24, 10), (19, 10), (19, 0), (24, 0)])
sketch11.addConstraint([
    Sketcher.Constraint("Horizontal", 0),
    Sketcher.Constraint("Vertical", 1),
    Sketcher.Constraint("Horizontal", 2),
    Sketcher.Constraint("Vertical", 3),
    Sketcher.Constraint("Horizontal", 4),
    Sketcher.Constraint("Vertical", 5),
    Sketcher.Constraint("Horizontal", 6),
    Sketcher.Constraint("Vertical", 7),
    Sketcher.Constraint("PointOnObject", 5, 2, -1),
    Sketcher.Constraint("Vertical", 1, 2, 4, 2),
    Sketcher.Constraint("Vertical", 3, 2, 6, 2),
    Sketcher.Constraint("Equal", 3, 5),
    Sketcher.Constraint("DistanceX", 0, 2, 0, 1, Q("5 mm")),
    Sketcher.Constraint("DistanceY", 1, 2, 1, 1, Q("10 mm")),
    Sketcher.Constraint("DistanceY", -1, 1, 0, 2, Q("50 mm")),
    Sketcher.Constraint("DistanceX", -1, 1, 0, 2, Q("18.769553 mm")),
])
sketch11.setExpression("Constraints[20]", "Params.sketch11_width")
sketch11.setExpression("Constraints[21]", "Params.sketch11_height")
pad7 = body.newObject("PartDesign::Pad", "Pad006")
pad7.Profile = sketch11
pad7.setExpression("Length", "Params.pad7_length")

sketch12 = body.newObject("Sketcher::SketchObject", "Sketch011")
sketch12.AttachmentSupport = (doc.getObject("XZ_Plane"), [""])
sketch12.MapMode = "FlatFace"
sketch12.AttachmentOffset = App.Placement(Vector(0, 0, -23.769553), App.Rotation())
sketch12.addGeometry([
    Part.Circle(Vector(20.4, 45, 0), Vector(0, 0, 1), 1.8),
    Part.Circle(Vector(20.4, 5, 0), Vector(0, 0, 1), 1.8),
    Part.Circle(Vector(-58.5, 45, 0), Vector(0, 0, 1), 1.8),
    Part.Circle(Vector(-58.5, 5, 0), Vector(0, 0, 1), 1.8),
], False)
sketch12.addConstraint([
    Sketcher.Constraint("Equal", 0, 1),
    Sketcher.Constraint("Equal", 1, 2),
    Sketcher.Constraint("Equal", 2, 3),
    Sketcher.Constraint("Horizontal", 0, 3, 2, 3),
    Sketcher.Constraint("Horizontal", 1, 3, 3, 3),
    Sketcher.Constraint("Vertical", 0, 3, 1, 3),
    Sketcher.Constraint("Vertical", 2, 3, 3, 3),
    Sketcher.Constraint("Diameter", 0, Q("3.6 mm")),
    Sketcher.Constraint("DistanceY", -1, 1, 0, 3, Q("45 mm")),
    Sketcher.Constraint("DistanceY", -1, 1, 1, 3, Q("5 mm")),
    Sketcher.Constraint("DistanceX", 2, 3, 0, 3, Q("78.96 mm")),
    Sketcher.Constraint("DistanceX", -1, 1, 0, 3, Q("20.448116 mm")),
])
sketch12.setExpression("Constraints[7]", "Params.sketch12_diameter")
pocket5 = body.newObject("PartDesign::Pocket", "Pocket004")
pocket5.Profile = sketch12
pocket5.setExpression("Length", "Params.pocket5_length")
pocket5.Reversed = True

doc.recompute()
